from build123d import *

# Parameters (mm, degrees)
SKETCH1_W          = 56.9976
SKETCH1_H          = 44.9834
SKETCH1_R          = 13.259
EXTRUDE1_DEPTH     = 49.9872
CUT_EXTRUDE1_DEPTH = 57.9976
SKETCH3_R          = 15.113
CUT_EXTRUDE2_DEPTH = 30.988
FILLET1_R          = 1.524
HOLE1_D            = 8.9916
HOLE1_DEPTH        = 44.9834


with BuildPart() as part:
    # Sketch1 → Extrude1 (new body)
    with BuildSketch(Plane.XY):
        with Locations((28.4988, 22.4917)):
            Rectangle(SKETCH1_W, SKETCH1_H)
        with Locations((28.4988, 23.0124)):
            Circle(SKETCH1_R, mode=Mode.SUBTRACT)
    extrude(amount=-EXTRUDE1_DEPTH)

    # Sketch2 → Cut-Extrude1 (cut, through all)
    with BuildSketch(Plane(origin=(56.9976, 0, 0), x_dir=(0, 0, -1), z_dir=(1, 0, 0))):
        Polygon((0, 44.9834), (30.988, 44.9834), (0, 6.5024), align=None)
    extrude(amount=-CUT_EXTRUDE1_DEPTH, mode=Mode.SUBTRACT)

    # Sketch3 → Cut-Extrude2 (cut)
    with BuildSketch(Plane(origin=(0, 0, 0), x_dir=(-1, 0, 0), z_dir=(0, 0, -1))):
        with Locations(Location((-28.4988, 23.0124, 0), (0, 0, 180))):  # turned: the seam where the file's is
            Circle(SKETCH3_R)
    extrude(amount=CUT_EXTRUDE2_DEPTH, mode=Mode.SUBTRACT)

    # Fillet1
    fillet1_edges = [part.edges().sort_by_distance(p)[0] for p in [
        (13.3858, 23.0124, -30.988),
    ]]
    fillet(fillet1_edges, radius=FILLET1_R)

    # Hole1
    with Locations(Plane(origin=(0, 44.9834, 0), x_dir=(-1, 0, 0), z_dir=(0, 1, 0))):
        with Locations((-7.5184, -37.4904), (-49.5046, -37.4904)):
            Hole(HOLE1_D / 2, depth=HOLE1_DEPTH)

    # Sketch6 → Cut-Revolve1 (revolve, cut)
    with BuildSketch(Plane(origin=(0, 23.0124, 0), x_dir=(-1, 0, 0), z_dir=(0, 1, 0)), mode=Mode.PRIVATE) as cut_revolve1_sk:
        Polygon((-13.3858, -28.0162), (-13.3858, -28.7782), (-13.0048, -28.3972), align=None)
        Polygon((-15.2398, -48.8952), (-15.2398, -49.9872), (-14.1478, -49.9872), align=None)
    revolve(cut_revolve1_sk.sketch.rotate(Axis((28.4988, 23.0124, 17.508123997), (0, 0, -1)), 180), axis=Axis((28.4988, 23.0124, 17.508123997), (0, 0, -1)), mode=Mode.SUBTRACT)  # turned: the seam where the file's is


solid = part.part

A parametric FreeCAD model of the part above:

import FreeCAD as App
import Part
import Sketcher
Q = App.Units.Quantity


def edges_at(feature, points):
    """Names of the edges that pass closest to the given points."""
    edges = feature.Shape.Edges
    near = lambda p: min(range(len(edges)), key=lambda i: edges[i].distToShape(Part.Vertex(*p))[0])
    return sorted({f"Edge{near(p) + 1}" for p in points})


def add_polygon(sketch, points):
    """Adds a closed chain of lines whose ends are joined by coincident constraints."""
    first, n = sketch.GeometryCount, len(points)
    for a, b in zip(points, points[1:] + points[:1]):
        sketch.addGeometry(Part.LineSegment(App.Vector(*a, 0), App.Vector(*b, 0)), False)
    for i in range(n):
        sketch.addConstraint(Sketcher.Constraint("Coincident", first + i, 2, first + (i + 1) % n, 1))

doc = App.newDocument("Part")
body = doc.addObject("PartDesign::Body", "Body")

sketch1 = body.newObject("Sketcher::SketchObject", "Sketch")
sketch1.AttachmentSupport = (doc.getObject("XY_Plane"), [""])
sketch1.MapMode = "FlatFace"
add_polygon(sketch1, [(0, 44.9834), (0, 0), (56.9976, 0), (56.9976, 44.9834)])
sketch1.addGeometry(Part.Circle(App.Vector(28.4988, 23.0124, 0), App.Vector(0, 0, 1), 13.259), False)
sketch1.addConstraint([
    Sketcher.Constraint("Vertical", 0),
    Sketcher.Constraint("Horizontal", 1),
    Sketcher.Constraint("Vertical", 2),
    Sketcher.Constraint("Horizontal", 3),
    Sketcher.Constraint("Coincident", 0, 2, -1, 1),
    Sketcher.Constraint("Diameter", 4, 26.518),
    Sketcher.Constraint("DistanceX", 1, 1, 1, 2, Q("2.244 in")),
    Sketcher.Constraint("DistanceY", 0, 2, 0, 1, Q("1.771 in")),
    Sketcher.Constraint("DistanceX", -1, 1, 4, 3, Q("1.122 in")),
    Sketcher.Constraint("DistanceY", -1, 1, 4, 3, Q("0.906 in")),
])
pad1 = body.newObject("PartDesign::Pad", "Pad")
pad1.Profile = sketch1
pad1.Length = Q("1.968 in")
pad1.Reversed = True

sketch2 = body.newObject("Sketcher::SketchObject", "Sketch001")
sketch2.AttachmentSupport = (doc.getObject("YZ_Plane"), [""])
sketch2.MapMode = "FlatFace"
sketch2.AttachmentOffset = App.Placement(App.Vector(0, 0, 2.244 * 25.4), App.Rotation())
add_polygon(sketch2, [(44.9834, -30.988), (44.9834, 0), (6.5024, 0)])
sketch2.addConstraint([
    Sketcher.Constraint("Vertical", 0),
    Sketcher.Constraint("Horizontal", 1),
    Sketcher.Constraint("PointOnObject", 0, 2, -1),
    Sketcher.Constraint("DistanceY", 0, 1, 0, 2, Q("1.22 in")),
    Sketcher.Constraint("DistanceX", 1, 2, 1, 1, Q("1.515 in")),
    Sketcher.Constraint("DistanceX", -1, 1, 0, 2, Q("1.771 in")),
])
pocket1 = body.newObject("PartDesign::Pocket", "Pocket")
pocket1.Profile = sketch2
pocket1.Type = "ThroughAll"

sketch3 = body.newObject("Sketcher::SketchObject", "Sketch002")
sketch3.AttachmentSupport = (doc.getObject("XY_Plane"), [""])
sketch3.MapMode = "FlatFace"
sketch3.addGeometry(Part.Circle(App.Vector(28.4988, 23.0124, 0), App.Vector(0, 0, 1), 15.113), False)
sketch3.addConstraint([
    Sketcher.Constraint("Diameter", 0, Q("1.19 in")),
    Sketcher.Constraint("DistanceX", -1, 1, 0, 3, Q("1.122 in")),
    Sketcher.Constraint("DistanceY", -1, 1, 0, 3, Q("0.906 in")),
])
pocket2 = body.newObject("PartDesign::Pocket", "Pocket001")
pocket2.Profile = sketch3
pocket2.Length = Q("1.22 in")
doc.recompute()

fillet = body.newObject("PartDesign::Fillet", "Fillet")
fillet.Base = (pocket2, edges_at(pocket2, [(13.386, 23.012, -30.988)]))
fillet.Radius = Q("0.06 in")

sketch4 = body.newObject("Sketcher::SketchObject", "Sketch003")
sketch4.AttachmentSupport = (doc.getObject("XZ_Plane"), [""])
sketch4.MapMode = "FlatFace"
sketch4.AttachmentOffset = App.Placement(App.Vector(0, 0, -1.771 * 25.4), App.Rotation())
sketch4.addGeometry([
    Part.Circle(App.Vector(7.5184, -37.4904, 0), App.Vector(0, 0, 1), 4.4958),
    Part.Circle(App.Vector(49.5046, -37.4904, 0), App.Vector(0, 0, 1), 4.4958),
], False)
sketch4.addConstraint([
    Sketcher.Constraint("Equal", 0, 1),
    Sketcher.Constraint("Horizontal", 0, 3, 1, 3),
    Sketcher.Constraint("Diameter", 0, Q("0.354 in")),
    Sketcher.Constraint("DistanceX", -1, 1, 0, 3, Q("0.296 in")),
    Sketcher.Constraint("DistanceY", 0, 3, -1, 1, Q("1.476 in")),
    Sketcher.Constraint("DistanceX", -1, 1, 1, 3, Q("1.949 in")),
])
doc.recompute()
hole = body.newObject("PartDesign::Hole", "Hole")
hole.Profile = sketch4
hole.ThreadType = "None"
hole.Diameter = Q("0.354 in")
hole.DepthType = "Dimension"
hole.Depth = Q("1.771 in")
hole.DrillPoint = "Flat"
hole.Reversed = True

sketch5 = body.newObject("Sketcher::SketchObject", "Sketch004")
sketch5.AttachmentSupport = (doc.getObject("XZ_Plane"), [""])
sketch5.MapMode = "FlatFace"
sketch5.AttachmentOffset = App.Placement(App.Vector(0, 0, -0.906 * 25.4), App.Rotation())
add_polygon(sketch5, [(13.3858, -28.0162), (13.3858, -28.7782), (13.0048, -28.3972)])
add_polygon(sketch5, [(15.2398, -48.8952), (15.2398, -49.9872), (14.1478, -49.9872)])
sketch5.addGeometry(Part.LineSegment(App.Vector(28.4988, -28.0162, 0), App.Vector(28.4988, -49.9872, 0)), True)
sketch5.addConstraint([
    Sketcher.Constraint("Vertical", 0),
    Sketcher.Constraint("Vertical", 3),
    Sketcher.Constraint("Horizontal", 4),
    Sketcher.Constraint("Vertical", 6),
    Sketcher.Constraint("Perpendicular", 1, 2),
    Sketcher.Constraint("Parallel", 2, 5),
    Sketcher.Constraint("Horizontal", 2, 2, 6, 1),
    Sketcher.Constraint("Horizontal", 4, 2, 6, 2),
    Sketcher.Constraint("Equal", 4, 3),
    Sketcher.Constraint("DistanceY", 0, 2, 0, 1, Q("0.03 in")),
    Sketcher.Constraint("DistanceY", 6, 2, 6, 1, Q("0.865 in")),
    Sketcher.Constraint("DistanceX", 0, 2, 4, 2, Q("0.03 in")),
    Sketcher.Constraint("DistanceX", 1, 2, 6, 1, Q("0.61 in")),
    Sketcher.Constraint("DistanceX", -1, 1, 0, 2, Q("0.527 in")),
    Sketcher.Constraint("DistanceY", 0, 2, -1, 1, Q("1.133 in")),
    Sketcher.Constraint("Distance", 5, Q("0.0608 in")),
])
groove = body.newObject("PartDesign::Groove", "Groove")
groove.Profile = sketch5
groove.ReferenceAxis = (sketch5, ["Axis0"])
groove.Angle = 360

doc.recompute()
